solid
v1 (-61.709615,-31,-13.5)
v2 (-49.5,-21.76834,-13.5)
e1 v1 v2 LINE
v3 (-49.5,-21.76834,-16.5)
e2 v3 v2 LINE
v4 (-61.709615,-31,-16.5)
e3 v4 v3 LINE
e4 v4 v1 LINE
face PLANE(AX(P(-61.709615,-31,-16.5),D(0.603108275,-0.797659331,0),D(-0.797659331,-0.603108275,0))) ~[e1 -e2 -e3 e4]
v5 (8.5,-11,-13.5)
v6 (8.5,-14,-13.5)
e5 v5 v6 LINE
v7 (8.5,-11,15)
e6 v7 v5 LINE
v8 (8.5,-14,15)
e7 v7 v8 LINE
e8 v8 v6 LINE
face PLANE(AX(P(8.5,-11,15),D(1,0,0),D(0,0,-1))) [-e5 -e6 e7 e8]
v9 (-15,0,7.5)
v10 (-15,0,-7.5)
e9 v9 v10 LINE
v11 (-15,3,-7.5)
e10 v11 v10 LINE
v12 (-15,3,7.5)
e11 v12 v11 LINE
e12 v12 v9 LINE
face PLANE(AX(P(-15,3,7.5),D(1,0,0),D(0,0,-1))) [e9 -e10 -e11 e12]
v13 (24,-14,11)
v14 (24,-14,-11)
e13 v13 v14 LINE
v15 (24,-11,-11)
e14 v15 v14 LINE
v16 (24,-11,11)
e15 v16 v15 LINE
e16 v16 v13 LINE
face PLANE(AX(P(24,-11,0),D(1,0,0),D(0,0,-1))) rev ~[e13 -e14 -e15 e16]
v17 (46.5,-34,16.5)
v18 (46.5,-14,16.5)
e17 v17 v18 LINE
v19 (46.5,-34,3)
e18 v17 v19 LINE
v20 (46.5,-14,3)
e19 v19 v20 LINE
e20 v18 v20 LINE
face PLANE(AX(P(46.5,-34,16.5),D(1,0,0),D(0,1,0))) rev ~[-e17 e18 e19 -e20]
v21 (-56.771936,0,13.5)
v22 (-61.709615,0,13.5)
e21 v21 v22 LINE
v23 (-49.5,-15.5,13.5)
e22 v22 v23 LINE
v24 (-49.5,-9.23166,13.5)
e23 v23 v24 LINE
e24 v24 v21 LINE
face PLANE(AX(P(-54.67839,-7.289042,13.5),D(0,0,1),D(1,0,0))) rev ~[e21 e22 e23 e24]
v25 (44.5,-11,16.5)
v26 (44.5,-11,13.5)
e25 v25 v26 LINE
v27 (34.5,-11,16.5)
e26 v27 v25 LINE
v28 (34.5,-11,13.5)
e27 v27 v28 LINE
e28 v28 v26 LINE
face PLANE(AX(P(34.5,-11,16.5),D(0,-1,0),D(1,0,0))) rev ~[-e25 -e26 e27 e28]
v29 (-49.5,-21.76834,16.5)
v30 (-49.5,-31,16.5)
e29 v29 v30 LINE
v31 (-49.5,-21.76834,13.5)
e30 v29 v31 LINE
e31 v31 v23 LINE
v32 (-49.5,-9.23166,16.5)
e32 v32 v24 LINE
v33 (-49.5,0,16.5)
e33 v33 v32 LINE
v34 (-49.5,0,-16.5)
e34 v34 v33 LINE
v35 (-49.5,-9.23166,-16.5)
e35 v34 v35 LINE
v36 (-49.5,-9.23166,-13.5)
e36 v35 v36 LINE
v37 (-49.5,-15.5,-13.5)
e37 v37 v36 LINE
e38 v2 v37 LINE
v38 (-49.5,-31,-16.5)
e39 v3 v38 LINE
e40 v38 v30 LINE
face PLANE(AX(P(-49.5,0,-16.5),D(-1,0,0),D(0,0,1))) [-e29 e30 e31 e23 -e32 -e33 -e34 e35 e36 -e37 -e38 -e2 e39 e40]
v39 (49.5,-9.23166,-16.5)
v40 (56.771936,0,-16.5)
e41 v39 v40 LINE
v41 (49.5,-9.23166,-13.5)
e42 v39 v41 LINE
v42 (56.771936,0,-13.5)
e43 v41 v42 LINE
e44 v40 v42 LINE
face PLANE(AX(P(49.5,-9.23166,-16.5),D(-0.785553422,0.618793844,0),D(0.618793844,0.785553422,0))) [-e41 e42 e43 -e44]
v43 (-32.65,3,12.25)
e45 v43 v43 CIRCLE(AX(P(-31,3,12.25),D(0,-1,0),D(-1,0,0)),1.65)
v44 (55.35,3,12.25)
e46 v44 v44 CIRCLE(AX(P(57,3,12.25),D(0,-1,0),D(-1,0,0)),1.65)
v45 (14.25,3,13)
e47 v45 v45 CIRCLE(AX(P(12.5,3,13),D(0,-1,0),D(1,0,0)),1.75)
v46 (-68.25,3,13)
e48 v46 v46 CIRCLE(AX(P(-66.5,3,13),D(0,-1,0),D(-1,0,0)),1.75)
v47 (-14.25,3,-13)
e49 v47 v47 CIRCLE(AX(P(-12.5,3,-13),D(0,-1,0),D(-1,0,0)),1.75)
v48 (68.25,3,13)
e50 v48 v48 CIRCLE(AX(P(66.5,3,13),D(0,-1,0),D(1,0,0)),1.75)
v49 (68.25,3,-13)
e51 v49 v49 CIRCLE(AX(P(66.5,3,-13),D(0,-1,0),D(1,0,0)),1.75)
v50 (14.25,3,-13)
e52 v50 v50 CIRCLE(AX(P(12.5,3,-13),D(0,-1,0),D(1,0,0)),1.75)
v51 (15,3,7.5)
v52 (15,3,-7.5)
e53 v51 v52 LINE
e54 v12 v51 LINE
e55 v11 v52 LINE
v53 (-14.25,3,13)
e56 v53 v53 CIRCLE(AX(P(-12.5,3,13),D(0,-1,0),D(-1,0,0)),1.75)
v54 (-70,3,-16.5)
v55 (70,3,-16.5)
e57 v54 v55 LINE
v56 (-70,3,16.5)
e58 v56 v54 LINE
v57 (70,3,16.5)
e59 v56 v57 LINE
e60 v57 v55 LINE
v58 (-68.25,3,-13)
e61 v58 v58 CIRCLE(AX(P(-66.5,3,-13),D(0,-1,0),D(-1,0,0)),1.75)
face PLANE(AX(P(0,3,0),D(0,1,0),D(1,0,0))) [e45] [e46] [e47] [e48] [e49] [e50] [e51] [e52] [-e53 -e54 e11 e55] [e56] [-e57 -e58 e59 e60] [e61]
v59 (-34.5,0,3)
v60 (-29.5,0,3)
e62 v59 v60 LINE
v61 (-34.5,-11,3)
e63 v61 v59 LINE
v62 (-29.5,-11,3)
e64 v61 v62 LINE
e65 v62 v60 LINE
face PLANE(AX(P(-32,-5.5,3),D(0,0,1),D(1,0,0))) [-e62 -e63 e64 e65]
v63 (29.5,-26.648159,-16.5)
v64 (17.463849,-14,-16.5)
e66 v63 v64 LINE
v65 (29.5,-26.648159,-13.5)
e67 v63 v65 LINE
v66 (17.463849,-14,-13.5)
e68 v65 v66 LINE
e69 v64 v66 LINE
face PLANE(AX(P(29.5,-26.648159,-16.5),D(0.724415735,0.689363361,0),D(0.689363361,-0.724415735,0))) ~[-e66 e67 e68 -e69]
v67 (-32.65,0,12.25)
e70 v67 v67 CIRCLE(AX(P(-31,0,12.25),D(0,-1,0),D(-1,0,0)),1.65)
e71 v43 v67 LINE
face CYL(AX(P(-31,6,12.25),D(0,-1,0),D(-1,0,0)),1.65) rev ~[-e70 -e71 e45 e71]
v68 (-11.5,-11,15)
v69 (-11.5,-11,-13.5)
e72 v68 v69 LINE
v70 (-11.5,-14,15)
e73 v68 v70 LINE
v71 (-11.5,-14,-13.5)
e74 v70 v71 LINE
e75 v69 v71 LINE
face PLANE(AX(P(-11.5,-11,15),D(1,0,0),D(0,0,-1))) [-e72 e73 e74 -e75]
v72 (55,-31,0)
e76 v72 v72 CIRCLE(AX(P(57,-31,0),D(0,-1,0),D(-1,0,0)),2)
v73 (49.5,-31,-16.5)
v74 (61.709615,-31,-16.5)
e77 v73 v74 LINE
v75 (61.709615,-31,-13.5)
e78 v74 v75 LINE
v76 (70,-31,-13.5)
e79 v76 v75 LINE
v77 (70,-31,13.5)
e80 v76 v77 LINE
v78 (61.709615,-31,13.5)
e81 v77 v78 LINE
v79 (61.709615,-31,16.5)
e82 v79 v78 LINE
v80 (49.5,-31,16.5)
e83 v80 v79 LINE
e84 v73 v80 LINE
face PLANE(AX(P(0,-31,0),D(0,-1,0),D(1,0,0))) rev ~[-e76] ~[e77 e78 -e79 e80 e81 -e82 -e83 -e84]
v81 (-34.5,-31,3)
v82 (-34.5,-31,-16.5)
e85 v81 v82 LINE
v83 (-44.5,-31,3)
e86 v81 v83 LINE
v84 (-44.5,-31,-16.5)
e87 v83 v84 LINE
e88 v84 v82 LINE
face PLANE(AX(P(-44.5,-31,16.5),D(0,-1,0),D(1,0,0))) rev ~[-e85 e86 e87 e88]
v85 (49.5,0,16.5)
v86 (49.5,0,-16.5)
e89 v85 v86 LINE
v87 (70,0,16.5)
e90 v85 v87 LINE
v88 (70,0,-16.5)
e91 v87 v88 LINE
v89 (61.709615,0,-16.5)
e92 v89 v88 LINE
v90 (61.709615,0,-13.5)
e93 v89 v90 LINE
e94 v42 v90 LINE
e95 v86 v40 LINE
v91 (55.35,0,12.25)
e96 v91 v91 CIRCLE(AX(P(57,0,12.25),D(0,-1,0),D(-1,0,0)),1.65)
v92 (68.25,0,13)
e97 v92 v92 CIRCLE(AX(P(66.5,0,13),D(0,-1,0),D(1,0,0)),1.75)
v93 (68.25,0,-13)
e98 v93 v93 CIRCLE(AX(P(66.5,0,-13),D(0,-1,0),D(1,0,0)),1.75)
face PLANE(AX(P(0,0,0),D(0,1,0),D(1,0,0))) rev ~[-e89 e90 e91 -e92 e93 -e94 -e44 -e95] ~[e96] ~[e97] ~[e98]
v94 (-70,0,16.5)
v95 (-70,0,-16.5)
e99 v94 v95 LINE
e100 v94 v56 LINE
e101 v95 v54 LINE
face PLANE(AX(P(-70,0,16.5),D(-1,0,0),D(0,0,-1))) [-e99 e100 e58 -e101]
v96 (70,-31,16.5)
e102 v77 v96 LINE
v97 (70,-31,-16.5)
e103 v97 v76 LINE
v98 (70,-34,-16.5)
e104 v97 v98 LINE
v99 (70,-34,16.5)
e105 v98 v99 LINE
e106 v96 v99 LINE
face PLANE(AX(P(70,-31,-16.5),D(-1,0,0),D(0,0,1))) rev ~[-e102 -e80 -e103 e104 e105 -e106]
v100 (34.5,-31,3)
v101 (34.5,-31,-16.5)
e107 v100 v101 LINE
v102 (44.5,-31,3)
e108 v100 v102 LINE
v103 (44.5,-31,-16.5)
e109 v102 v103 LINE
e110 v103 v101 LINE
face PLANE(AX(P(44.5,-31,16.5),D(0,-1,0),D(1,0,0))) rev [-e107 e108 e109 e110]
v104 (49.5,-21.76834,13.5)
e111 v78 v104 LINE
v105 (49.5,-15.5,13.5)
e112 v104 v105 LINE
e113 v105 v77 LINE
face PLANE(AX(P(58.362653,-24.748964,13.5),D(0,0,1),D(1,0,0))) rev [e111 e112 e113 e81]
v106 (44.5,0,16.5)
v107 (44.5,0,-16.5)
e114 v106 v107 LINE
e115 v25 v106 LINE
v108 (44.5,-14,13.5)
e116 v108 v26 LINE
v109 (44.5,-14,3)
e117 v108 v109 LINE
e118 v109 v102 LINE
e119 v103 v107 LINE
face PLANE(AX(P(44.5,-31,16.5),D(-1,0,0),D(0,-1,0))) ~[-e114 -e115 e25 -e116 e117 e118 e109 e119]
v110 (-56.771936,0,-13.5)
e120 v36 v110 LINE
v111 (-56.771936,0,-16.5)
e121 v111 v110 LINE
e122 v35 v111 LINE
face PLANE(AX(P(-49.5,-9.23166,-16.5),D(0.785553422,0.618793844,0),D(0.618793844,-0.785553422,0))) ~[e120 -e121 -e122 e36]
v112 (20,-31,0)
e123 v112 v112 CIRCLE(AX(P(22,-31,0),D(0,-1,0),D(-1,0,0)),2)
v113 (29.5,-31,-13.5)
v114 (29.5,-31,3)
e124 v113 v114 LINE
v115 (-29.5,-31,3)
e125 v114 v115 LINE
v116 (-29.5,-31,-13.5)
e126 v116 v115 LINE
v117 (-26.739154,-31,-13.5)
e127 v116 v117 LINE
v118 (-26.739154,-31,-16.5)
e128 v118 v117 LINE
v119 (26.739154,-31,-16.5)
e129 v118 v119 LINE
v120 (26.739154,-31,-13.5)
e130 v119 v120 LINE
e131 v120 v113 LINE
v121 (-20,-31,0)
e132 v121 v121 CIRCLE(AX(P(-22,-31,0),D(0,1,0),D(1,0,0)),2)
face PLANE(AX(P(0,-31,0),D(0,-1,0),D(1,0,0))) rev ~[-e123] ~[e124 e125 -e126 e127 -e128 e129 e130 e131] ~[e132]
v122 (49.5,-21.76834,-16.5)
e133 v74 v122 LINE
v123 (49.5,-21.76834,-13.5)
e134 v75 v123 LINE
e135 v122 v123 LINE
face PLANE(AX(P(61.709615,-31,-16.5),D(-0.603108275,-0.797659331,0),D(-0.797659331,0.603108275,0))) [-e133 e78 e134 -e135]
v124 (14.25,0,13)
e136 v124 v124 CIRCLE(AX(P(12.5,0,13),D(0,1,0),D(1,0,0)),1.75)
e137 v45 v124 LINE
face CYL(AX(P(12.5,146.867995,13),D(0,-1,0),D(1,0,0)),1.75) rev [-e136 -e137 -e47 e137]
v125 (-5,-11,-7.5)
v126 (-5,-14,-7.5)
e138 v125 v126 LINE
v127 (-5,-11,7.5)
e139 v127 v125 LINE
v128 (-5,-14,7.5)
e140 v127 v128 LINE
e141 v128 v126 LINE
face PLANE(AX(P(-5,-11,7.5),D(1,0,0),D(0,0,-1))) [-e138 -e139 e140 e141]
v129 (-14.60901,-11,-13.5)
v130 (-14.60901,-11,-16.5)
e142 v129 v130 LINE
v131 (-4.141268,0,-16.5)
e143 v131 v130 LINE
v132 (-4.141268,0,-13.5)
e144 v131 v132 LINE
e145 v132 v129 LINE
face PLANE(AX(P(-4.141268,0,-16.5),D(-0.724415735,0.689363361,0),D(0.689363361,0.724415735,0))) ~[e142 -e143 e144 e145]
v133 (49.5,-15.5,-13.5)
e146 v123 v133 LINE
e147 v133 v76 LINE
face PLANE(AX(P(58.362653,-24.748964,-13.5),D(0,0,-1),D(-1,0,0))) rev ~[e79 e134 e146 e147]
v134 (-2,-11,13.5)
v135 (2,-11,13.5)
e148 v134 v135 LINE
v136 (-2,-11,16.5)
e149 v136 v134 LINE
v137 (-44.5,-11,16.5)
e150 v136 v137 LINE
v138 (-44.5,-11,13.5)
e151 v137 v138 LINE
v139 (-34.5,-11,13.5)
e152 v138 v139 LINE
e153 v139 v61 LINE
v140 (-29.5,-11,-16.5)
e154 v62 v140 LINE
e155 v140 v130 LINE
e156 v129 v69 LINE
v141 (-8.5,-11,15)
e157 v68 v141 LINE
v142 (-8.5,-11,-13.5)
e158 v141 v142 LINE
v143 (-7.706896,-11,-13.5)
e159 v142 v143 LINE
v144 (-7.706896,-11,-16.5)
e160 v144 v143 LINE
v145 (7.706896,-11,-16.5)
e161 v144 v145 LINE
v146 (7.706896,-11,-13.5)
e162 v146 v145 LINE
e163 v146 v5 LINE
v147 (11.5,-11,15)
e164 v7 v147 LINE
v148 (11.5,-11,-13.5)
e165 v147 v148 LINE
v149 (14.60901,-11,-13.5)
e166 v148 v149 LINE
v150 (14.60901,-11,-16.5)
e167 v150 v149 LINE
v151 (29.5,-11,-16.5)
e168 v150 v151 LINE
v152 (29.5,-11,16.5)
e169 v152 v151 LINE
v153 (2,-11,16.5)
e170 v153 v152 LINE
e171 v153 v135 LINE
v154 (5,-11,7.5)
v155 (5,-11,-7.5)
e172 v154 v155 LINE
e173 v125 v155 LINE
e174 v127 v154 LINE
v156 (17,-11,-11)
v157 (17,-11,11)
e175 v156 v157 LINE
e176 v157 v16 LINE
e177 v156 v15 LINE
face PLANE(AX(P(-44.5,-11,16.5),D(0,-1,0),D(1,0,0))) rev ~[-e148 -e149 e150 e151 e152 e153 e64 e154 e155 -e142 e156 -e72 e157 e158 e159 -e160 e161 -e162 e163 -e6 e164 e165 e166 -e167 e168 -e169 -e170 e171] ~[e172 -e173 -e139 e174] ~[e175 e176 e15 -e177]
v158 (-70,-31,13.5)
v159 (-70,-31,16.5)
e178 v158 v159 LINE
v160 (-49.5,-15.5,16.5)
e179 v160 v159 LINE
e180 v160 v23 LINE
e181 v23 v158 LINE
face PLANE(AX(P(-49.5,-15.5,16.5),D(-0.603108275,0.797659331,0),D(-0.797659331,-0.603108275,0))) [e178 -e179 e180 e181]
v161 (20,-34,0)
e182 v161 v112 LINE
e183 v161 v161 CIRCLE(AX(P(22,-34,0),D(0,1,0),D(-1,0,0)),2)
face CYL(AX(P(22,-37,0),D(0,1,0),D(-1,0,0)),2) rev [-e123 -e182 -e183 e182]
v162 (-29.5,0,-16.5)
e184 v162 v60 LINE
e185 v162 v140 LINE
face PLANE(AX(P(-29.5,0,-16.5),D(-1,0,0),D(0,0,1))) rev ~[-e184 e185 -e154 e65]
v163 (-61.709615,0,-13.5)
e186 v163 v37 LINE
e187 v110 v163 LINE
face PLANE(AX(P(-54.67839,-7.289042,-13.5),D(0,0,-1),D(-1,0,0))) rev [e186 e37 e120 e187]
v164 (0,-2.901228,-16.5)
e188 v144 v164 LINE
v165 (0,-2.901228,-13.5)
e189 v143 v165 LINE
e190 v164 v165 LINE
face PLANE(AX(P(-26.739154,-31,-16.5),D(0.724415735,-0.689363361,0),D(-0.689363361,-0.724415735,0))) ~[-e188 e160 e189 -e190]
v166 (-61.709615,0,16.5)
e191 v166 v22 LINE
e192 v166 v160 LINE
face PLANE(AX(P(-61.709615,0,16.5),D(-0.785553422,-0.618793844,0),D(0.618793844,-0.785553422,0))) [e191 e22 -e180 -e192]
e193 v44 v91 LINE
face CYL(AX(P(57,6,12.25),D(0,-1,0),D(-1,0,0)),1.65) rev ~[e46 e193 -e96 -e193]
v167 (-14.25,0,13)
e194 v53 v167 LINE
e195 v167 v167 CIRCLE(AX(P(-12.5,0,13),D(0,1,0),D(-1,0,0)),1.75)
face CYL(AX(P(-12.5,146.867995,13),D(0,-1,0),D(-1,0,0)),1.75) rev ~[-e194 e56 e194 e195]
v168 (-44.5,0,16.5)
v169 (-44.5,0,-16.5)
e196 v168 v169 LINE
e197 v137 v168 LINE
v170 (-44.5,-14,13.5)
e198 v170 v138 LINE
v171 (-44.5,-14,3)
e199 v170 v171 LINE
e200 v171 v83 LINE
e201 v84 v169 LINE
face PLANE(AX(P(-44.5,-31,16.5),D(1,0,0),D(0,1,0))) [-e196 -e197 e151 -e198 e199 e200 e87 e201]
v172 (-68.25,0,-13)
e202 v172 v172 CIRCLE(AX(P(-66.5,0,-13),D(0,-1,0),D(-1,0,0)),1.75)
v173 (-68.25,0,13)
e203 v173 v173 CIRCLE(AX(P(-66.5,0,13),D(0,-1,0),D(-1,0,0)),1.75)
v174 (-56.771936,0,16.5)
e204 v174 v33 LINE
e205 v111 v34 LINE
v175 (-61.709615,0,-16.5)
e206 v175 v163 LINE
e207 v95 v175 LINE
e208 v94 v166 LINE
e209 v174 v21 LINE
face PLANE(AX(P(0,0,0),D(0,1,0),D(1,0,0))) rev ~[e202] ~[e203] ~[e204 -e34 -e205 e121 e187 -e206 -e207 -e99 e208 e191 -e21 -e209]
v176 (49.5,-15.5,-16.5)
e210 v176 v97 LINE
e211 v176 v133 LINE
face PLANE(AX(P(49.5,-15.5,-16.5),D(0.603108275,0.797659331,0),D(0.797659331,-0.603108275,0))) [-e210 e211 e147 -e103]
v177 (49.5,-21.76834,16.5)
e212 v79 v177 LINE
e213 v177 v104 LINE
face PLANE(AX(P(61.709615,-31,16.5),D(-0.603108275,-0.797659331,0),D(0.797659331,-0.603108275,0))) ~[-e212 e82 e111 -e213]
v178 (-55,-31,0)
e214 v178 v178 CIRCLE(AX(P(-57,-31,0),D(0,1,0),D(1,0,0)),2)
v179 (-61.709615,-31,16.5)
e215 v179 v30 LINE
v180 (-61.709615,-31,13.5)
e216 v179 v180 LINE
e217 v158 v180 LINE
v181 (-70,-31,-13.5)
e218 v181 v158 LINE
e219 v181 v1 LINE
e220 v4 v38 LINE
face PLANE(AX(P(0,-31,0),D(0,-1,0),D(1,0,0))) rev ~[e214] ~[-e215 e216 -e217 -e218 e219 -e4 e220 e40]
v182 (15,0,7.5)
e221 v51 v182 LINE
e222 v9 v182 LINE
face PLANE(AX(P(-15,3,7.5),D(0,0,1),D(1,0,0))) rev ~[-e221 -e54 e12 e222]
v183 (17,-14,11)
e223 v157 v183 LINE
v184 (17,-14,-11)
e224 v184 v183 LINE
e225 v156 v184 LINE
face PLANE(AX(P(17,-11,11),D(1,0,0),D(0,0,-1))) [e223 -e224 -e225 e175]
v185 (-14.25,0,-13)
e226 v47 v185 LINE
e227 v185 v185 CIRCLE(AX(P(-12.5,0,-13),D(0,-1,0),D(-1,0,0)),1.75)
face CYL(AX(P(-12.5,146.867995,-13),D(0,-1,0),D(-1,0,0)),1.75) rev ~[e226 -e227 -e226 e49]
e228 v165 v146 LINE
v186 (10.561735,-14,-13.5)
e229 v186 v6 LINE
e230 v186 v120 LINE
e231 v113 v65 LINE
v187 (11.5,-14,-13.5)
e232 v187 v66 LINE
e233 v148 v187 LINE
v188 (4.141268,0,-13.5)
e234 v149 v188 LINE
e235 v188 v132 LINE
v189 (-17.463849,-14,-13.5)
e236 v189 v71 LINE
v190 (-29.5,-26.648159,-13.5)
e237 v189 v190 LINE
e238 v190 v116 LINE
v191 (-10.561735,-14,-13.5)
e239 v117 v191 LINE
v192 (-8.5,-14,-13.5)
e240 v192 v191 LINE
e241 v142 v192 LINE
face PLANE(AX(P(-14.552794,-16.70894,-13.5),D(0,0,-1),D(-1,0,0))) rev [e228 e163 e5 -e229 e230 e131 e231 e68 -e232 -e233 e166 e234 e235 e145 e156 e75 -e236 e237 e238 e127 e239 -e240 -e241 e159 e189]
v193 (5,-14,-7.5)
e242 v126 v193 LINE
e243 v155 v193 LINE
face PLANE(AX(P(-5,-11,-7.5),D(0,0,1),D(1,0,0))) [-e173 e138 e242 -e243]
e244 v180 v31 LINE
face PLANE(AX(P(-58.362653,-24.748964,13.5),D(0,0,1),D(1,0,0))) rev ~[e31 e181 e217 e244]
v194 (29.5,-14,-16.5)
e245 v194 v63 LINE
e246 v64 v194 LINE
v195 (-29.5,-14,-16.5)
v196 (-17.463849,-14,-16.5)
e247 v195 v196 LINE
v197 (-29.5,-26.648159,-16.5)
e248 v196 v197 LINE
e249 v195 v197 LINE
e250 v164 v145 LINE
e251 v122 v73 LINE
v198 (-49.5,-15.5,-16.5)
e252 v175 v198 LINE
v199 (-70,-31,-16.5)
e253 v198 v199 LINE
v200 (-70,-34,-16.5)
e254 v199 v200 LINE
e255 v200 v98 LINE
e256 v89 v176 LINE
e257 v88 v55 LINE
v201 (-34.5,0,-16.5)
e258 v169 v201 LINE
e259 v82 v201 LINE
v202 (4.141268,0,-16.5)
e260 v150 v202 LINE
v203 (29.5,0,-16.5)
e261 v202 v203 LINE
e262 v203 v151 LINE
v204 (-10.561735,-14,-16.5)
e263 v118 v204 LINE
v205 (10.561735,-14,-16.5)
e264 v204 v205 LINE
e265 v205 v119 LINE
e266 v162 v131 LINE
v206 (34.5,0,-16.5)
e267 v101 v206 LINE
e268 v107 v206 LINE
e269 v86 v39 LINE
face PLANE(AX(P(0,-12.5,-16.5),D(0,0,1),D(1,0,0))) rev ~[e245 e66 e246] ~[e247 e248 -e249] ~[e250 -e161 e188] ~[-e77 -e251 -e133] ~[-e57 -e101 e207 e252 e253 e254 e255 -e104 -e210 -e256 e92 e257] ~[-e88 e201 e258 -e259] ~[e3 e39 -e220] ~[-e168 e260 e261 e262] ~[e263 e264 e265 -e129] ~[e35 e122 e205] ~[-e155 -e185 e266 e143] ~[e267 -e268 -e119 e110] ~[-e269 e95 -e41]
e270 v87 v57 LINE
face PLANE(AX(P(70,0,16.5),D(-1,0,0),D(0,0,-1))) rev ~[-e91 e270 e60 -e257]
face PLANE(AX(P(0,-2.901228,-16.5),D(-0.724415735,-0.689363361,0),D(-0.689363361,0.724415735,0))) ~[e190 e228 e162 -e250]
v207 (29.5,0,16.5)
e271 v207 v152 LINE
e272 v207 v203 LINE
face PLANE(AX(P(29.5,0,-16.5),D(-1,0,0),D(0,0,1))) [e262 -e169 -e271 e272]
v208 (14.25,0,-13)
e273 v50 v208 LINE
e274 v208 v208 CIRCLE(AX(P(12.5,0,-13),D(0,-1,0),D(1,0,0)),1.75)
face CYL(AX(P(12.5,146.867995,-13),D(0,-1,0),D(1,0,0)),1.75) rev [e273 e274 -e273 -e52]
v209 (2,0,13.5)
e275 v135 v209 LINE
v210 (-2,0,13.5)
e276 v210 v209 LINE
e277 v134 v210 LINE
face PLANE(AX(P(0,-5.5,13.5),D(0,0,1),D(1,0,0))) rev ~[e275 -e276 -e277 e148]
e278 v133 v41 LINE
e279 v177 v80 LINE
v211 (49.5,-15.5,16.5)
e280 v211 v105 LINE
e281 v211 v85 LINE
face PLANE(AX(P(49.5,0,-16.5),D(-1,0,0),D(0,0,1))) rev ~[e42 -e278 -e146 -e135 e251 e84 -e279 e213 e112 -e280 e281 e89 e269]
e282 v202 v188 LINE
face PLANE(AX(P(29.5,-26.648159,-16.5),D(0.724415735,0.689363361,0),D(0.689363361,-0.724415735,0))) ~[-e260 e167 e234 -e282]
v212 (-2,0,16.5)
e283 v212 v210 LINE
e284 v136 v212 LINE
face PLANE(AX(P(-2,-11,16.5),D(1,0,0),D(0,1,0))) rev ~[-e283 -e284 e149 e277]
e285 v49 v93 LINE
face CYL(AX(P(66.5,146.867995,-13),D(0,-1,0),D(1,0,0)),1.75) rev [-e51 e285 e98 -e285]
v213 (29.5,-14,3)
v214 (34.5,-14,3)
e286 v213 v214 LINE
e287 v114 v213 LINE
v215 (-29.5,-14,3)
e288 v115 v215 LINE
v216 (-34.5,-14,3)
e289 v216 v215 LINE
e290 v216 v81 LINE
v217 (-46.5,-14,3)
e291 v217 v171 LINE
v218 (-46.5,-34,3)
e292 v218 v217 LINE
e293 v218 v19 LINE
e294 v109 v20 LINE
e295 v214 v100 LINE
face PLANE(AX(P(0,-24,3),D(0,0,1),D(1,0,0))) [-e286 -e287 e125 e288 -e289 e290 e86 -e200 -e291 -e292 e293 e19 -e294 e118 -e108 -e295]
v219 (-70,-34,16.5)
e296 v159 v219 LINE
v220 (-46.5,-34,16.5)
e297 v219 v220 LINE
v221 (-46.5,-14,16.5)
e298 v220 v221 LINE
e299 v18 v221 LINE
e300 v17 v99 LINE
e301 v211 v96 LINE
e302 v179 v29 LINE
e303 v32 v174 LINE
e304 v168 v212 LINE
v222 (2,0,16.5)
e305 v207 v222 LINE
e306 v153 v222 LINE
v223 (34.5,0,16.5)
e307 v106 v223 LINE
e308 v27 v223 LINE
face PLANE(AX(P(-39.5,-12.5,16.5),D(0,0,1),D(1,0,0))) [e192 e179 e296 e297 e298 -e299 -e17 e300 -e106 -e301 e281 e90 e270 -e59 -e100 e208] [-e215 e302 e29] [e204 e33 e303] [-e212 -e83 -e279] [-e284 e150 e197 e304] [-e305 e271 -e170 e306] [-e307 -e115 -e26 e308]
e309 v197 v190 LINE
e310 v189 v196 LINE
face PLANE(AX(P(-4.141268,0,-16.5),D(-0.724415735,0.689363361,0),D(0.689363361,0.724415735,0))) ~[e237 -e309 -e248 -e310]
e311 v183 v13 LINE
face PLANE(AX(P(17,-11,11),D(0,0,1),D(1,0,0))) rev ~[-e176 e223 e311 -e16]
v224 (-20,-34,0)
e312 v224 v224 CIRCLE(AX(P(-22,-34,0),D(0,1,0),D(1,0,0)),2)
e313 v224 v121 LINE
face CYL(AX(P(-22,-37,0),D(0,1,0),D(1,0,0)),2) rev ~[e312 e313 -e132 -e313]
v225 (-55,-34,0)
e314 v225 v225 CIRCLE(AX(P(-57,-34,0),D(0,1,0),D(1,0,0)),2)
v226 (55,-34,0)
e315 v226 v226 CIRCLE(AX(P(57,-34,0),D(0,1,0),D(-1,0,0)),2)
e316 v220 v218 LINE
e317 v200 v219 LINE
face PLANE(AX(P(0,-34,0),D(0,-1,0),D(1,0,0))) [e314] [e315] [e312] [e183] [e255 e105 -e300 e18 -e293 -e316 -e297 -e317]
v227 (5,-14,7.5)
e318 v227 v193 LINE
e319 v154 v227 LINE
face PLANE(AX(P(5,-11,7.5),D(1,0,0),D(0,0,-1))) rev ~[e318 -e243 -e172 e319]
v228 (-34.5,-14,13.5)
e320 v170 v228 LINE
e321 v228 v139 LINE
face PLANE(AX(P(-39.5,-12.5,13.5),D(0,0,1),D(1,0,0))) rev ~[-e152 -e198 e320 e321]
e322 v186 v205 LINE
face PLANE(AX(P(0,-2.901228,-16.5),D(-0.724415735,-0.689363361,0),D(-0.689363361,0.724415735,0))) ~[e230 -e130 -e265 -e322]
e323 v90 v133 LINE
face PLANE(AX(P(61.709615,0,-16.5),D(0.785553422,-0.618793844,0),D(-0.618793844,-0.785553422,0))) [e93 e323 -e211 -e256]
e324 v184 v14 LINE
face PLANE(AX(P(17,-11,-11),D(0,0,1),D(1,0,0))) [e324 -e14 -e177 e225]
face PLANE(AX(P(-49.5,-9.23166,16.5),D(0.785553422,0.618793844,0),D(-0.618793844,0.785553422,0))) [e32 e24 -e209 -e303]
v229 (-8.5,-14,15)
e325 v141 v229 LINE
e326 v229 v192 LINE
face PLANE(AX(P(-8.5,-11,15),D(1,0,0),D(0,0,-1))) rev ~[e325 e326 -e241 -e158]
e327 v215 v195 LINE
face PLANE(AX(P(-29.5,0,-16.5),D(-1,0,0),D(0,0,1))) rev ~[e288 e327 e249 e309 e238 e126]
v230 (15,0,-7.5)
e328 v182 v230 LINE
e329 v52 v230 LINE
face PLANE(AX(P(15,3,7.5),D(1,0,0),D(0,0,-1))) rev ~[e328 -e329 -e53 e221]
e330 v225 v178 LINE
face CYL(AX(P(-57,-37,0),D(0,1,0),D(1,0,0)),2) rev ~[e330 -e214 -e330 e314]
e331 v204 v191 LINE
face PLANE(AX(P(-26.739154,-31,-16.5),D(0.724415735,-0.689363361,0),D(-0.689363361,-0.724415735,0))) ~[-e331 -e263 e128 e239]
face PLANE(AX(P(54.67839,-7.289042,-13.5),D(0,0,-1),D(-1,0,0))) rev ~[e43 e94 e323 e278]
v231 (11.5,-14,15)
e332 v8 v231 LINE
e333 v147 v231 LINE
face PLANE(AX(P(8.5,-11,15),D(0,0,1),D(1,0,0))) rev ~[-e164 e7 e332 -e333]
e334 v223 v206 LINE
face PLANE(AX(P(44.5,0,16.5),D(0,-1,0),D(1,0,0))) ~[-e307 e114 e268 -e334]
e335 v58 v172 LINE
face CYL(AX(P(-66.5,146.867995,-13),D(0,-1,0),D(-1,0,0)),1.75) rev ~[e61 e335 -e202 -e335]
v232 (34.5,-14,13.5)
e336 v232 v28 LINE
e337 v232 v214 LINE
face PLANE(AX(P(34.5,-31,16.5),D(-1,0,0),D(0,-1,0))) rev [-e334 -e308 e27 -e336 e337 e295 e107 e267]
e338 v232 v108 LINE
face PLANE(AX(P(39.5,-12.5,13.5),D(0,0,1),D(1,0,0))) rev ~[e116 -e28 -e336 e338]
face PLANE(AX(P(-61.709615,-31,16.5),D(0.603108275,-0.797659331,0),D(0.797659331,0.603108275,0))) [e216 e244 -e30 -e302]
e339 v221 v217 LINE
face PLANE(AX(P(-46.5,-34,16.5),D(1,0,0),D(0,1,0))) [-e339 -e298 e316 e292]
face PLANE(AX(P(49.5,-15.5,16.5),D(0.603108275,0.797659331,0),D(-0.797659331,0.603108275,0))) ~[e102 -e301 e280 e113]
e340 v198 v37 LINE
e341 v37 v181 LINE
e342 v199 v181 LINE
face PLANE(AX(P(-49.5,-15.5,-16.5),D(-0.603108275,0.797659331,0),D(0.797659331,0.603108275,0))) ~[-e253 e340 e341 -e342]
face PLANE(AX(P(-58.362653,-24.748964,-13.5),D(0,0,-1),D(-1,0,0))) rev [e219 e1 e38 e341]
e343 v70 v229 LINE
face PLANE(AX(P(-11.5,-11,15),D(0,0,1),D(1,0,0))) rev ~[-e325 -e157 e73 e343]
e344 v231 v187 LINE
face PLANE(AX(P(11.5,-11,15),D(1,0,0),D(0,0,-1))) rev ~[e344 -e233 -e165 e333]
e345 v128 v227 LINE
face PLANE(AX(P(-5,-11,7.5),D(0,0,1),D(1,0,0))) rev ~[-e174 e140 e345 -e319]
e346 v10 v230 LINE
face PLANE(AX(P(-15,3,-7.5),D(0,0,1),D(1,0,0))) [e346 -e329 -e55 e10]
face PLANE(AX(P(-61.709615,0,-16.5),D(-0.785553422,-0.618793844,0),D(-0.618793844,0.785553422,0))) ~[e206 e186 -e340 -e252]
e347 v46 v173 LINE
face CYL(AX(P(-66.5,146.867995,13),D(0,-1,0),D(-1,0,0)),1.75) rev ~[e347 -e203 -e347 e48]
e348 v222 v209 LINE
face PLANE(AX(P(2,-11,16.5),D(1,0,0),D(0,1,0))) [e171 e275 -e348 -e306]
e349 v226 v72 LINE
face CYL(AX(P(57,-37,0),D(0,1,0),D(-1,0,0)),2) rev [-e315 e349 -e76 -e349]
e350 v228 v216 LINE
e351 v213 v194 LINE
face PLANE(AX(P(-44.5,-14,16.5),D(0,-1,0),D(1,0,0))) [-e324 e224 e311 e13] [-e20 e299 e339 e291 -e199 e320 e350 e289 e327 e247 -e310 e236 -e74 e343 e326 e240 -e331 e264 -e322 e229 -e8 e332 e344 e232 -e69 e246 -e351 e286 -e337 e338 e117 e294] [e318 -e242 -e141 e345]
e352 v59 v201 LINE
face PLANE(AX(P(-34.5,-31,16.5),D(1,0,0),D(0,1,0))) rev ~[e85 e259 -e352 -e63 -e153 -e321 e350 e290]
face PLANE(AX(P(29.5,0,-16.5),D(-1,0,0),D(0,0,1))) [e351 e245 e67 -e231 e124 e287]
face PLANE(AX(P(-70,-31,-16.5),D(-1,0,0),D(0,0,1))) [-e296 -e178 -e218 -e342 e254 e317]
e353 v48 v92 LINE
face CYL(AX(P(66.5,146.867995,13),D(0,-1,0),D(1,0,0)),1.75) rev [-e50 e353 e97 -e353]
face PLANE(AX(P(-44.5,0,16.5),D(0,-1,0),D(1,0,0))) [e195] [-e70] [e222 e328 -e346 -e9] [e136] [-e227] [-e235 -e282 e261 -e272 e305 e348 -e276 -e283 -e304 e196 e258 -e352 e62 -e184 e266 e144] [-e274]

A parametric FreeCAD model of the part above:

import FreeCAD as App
import Part
import Sketcher
Q = App.Units.Quantity


def add_polygon(sketch, points):
    """Adds a closed chain of lines whose ends are joined by coincident constraints."""
    first, n = sketch.GeometryCount, len(points)
    for a, b in zip(points, points[1:] + points[:1]):
        sketch.addGeometry(Part.LineSegment(App.Vector(*a, 0), App.Vector(*b, 0)), False)
    for i in range(n):
        sketch.addConstraint(Sketcher.Constraint("Coincident", first + i, 2, first + (i + 1) % n, 1))

doc = App.newDocument("Part")
body = doc.addObject("PartDesign::Body", "Body")

sketch1 = doc.addObject("Sketcher::SketchObject", "Sketch")
body.addObject(sketch1)
sketch1.AttachmentSupport = (doc.XZ_Plane, [""])
sketch1.MapMode = "FlatFace"
add_polygon(sketch1, [(-70, -16), (-70, 16), (70, 16), (70, -16)])
sketch1.addConstraint([
    Sketcher.Constraint("Vertical", 0),
    Sketcher.Constraint("Horizontal", 1),
    Sketcher.Constraint("Vertical", 2),
    Sketcher.Constraint("Horizontal", 3),
    Sketcher.Constraint("Symmetric", 0, 2, 2, 2, -1, 1),
    Sketcher.Constraint("DistanceX", 1, 1, 1, 2, Q("140 mm")),
    Sketcher.Constraint("DistanceY", 0, 1, 0, 2, Q("33 mm")),
])
pad1 = doc.addObject("PartDesign::Pad", "Pad")
body.addObject(pad1)
pad1.Profile = sketch1
pad1.Length = 3
pad1.Reversed = True

sketch2 = doc.addObject("Sketcher::SketchObject", "Sketch001")
body.addObject(sketch2)
sketch2.AttachmentSupport = (doc.XZ_Plane, [""])
sketch2.MapMode = "FlatFace"
sketch2.AttachmentOffset = App.Placement(App.Vector(0, 0, -3), App.Rotation())
sketch2.addGeometry([
    Part.Circle(App.Vector(-66.5, -13, 0), App.Vector(0, 0, 1), 1.8),
    Part.Circle(App.Vector(-12.5, -13, 0), App.Vector(0, 0, 1), 1.8),
    Part.Circle(App.Vector(-12.5, 13, 0), App.Vector(0, 0, 1), 1.8),
    Part.Circle(App.Vector(-66.5, 13, 0), App.Vector(0, 0, 1), 1.8),
], False)
sketch2.addConstraint([
    Sketcher.Constraint("Equal", 0, 1),
    Sketcher.Constraint("Equal", 1, 2),
    Sketcher.Constraint("Equal", 2, 3),
    Sketcher.Constraint("Symmetric", 1, 3, 2, 3, -1),
    Sketcher.Constraint("Symmetric", 0, 3, 3, 3, -1),
    Sketcher.Constraint("Horizontal", 0, 3, 1, 3),
    Sketcher.Constraint("Diameter", 0, Q("3.5 mm")),
    Sketcher.Constraint("DistanceY", 0, 3, -1, 1, Q("13 mm")),
    Sketcher.Constraint("DistanceX", 0, 3, 1, 3, Q("54 mm")),
    Sketcher.Constraint("DistanceX", 0, 3, -1, 1, Q("66.5 mm")),
])
doc.recompute()
hole = doc.addObject("PartDesign::Hole", "Hole")
body.addObject(hole)
hole.Profile = sketch2
hole.ThreadType = "None"
hole.Diameter = 3.5
hole.DepthType = "ThroughAll"
hole.Reversed = True
doc.recompute()

mirrored = doc.addObject("PartDesign::Mirrored", "Mirrored")
body.addObject(mirrored)
mirrored.Originals = [hole]
mirrored.MirrorPlane = (doc.YZ_Plane, [""])
body.Tip = mirrored

sketch3 = doc.addObject("Sketcher::SketchObject", "Sketch002")
body.addObject(sketch3)
sketch3.AttachmentSupport = (doc.XZ_Plane, [""])
sketch3.MapMode = "FlatFace"
add_polygon(sketch3, [(-50, 16), (-50, -16), (-30, -16), (-30, 16)])
add_polygon(sketch3, [(30, 16), (30, -16), (50, -16), (50, 16)])
sketch3.addConstraint([
    Sketcher.Constraint("Vertical", 0),
    Sketcher.Constraint("Horizontal", 1),
    Sketcher.Constraint("Vertical", 2),
    Sketcher.Constraint("Horizontal", 3),
    Sketcher.Constraint("Vertical", 4),
    Sketcher.Constraint("Horizontal", 5),
    Sketcher.Constraint("Vertical", 6),
    Sketcher.Constraint("Horizontal", 7),
    Sketcher.Constraint("Symmetric", 2, 2, 4, 2, -1, 1),
    Sketcher.Constraint("Symmetric", 0, 2, 6, 2, -1, 1),
    Sketcher.Constraint("Horizontal", 1, 2, 4, 2),
    Sketcher.Constraint("DistanceX", 1, 1, 1, 2, Q("20 mm")),
    Sketcher.Constraint("DistanceY", 0, 2, 0, 1, Q("33 mm")),
    Sketcher.Constraint("DistanceX", 1, 2, 4, 2, Q("59 mm")),
])
pad2 = doc.addObject("PartDesign::Pad", "Pad001")
body.addObject(pad2)
pad2.Profile = sketch3
pad2.Length = 31

sketch4 = doc.addObject("Sketcher::SketchObject", "Sketch003")
body.addObject(sketch4)
sketch4.AttachmentSupport = (doc.XZ_Plane, [""])
sketch4.MapMode = "FlatFace"
sketch4.AttachmentOffset = App.Placement(App.Vector(0, 0, 31), App.Rotation())
add_polygon(sketch4, [(-70, 16), (-70, -16), (70, -16), (70, 16)])
sketch4.addConstraint([
    Sketcher.Constraint("Vertical", 0),
    Sketcher.Constraint("Horizontal", 1),
    Sketcher.Constraint("Vertical", 2),
    Sketcher.Constraint("Horizontal", 3),
    Sketcher.Constraint("Symmetric", 0, 2, 2, 2, -1, 1),
    Sketcher.Constraint("DistanceX", 1, 1, 1, 2, Q("140 mm")),
    Sketcher.Constraint("DistanceY", 0, 2, 0, 1, Q("33 mm")),
])
pad3 = doc.addObject("PartDesign::Pad", "Pad002")
body.addObject(pad3)
pad3.Profile = sketch4
pad3.Length = 3

sketch5 = doc.addObject("Sketcher::SketchObject", "Sketch004")
body.addObject(sketch5)
sketch5.AttachmentSupport = (doc.XZ_Plane, [""])
sketch5.MapMode = "FlatFace"
sketch5.AttachmentOffset = App.Placement(App.Vector(0, 0, 34), App.Rotation())
sketch5.addGeometry([
    Part.Circle(App.Vector(-57, 0, 0), App.Vector(0, 0, 1), 2),
    Part.Circle(App.Vector(-22, 0, 0), App.Vector(0, 0, 1), 2),
], False)
sketch5.addConstraint([
    Sketcher.Constraint("Equal", 0, 1),
    Sketcher.Constraint("PointOnObject", 0, 3, -1),
    Sketcher.Constraint("PointOnObject", 1, 3, -1),
    Sketcher.Constraint("Diameter", 0, Q("4 mm")),
    Sketcher.Constraint("DistanceX", 0, 3, -1, 1, Q("57 mm")),
    Sketcher.Constraint("DistanceX", 1, 3, -1, 1, Q("22 mm")),
])
doc.recompute()
hole2 = doc.addObject("PartDesign::Hole", "Hole001")
body.addObject(hole2)
hole2.Profile = sketch5
hole2.ThreadType = "None"
hole2.Diameter = 4
hole2.DepthType = "Dimension"
hole2.Depth = 3
hole2.DrillPoint = "Flat"
doc.recompute()

mirrored2 = doc.addObject("PartDesign::Mirrored", "Mirrored001")
body.addObject(mirrored2)
mirrored2.Originals = [hole2]
mirrored2.MirrorPlane = (doc.YZ_Plane, [""])
body.Tip = mirrored2

sketch6 = doc.addObject("Sketcher::SketchObject", "Sketch005")
body.addObject(sketch6)
sketch6.AttachmentSupport = (doc.XY_Plane, [""])
sketch6.MapMode = "FlatFace"
sketch6.AttachmentOffset = App.Placement(App.Vector(0, 0, 16.5), App.Rotation())
add_polygon(sketch6, [(-61.7, 0), (-49.5, -15.5), (-49.5, -9.2), (-56.8, 0)])
add_polygon(sketch6, [(-49.5, -15.5), (-70, -31), (-61.7, -31), (-49.5, -21.8)])
sketch6.addConstraint([
    Sketcher.Constraint("Vertical", 1),
    Sketcher.Constraint("Horizontal", 3),
    Sketcher.Constraint("Horizontal", 5),
    Sketcher.Constraint("Vertical", 7),
    Sketcher.Constraint("Coincident", 7, 2, 0, 2),
    Sketcher.Constraint("PointOnObject", 2, 2, -1),
    Sketcher.Constraint("Parallel", 0, 2),
    Sketcher.Constraint("Parallel", 4, 6),
    Sketcher.Constraint("Vertical", 3, 2, 5, 2),
    Sketcher.Constraint("Equal", 1, 7),
    Sketcher.Constraint("DistanceX", 4, 2, -1, 1, Q("70 mm")),
    Sketcher.Constraint("DistanceY", 4, 2, -1, 1, Q("31 mm")),
    Sketcher.Constraint("DistanceX", 0, 2, -1, 1, Q("49.5 mm")),
    Sketcher.Constraint("DistanceY", 0, 2, -1, 1, Q("15.5 mm")),
    Sketcher.Constraint("DistanceX", 3, 2, 3, 1, Q("4.937679 mm")),
])
pad4 = doc.addObject("PartDesign::Pad", "Pad003")
body.addObject(pad4)
pad4.Profile = sketch6
pad4.Length = 3
pad4.Reversed = True
doc.recompute()

mirrored3 = doc.addObject("PartDesign::Mirrored", "Mirrored002")
body.addObject(mirrored3)
mirrored3.Originals = [pad4]
mirrored3.MirrorPlane = (doc.XY_Plane, [""])
body.Tip = mirrored3
doc.recompute()

mirrored4 = doc.addObject("PartDesign::Mirrored", "Mirrored003")
body.addObject(mirrored4)
mirrored4.Originals = [pad4]
mirrored4.MirrorPlane = (doc.YZ_Plane, [""])
body.Tip = mirrored4

sketch7 = doc.addObject("Sketcher::SketchObject", "Sketch006")
body.addObject(sketch7)
sketch7.AttachmentSupport = (doc.XY_Plane, [""])
sketch7.MapMode = "FlatFace"
sketch7.AttachmentOffset = App.Placement(App.Vector(0, 0, -16.5), App.Rotation())
add_polygon(sketch7, [(61.7, 0), (49.5, -15.5), (49.5, -9.2), (56.8, 0)])
add_polygon(sketch7, [(49.5, -15.5), (70, -31), (61.7, -31), (49.5, -21.8)])
sketch7.addConstraint([
    Sketcher.Constraint("Vertical", 1),
    Sketcher.Constraint("Horizontal", 3),
    Sketcher.Constraint("Horizontal", 5),
    Sketcher.Constraint("Vertical", 7),
    Sketcher.Constraint("Coincident", 7, 2, 0, 2),
    Sketcher.Constraint("PointOnObject", 2, 2, -1),
    Sketcher.Constraint("Parallel", 0, 2),
    Sketcher.Constraint("Parallel", 4, 6),
    Sketcher.Constraint("Vertical", 3, 2, 5, 2),
    Sketcher.Constraint("Equal", 1, 7),
    Sketcher.Constraint("DistanceX", -1, 1, 4, 2, Q("70 mm")),
    Sketcher.Constraint("DistanceY", 4, 2, -1, 1, Q("31 mm")),
    Sketcher.Constraint("DistanceX", -1, 1, 0, 2, Q("49.5 mm")),
    Sketcher.Constraint("DistanceY", 0, 2, -1, 1, Q("15.5 mm")),
    Sketcher.Constraint("DistanceX", 3, 1, 3, 2, Q("4.937679 mm")),
])
pad5 = doc.addObject("PartDesign::Pad", "Pad004")
body.addObject(pad5)
pad5.Profile = sketch7
pad5.Length = 3

sketch8 = doc.addObject("Sketcher::SketchObject", "Sketch007")
body.addObject(sketch8)
sketch8.AttachmentSupport = (doc.XY_Plane, [""])
sketch8.MapMode = "FlatFace"
sketch8.AttachmentOffset = App.Placement(App.Vector(0, 0, 16.5), App.Rotation())
add_polygon(sketch8, [(-29.5, -31), (-26.7, -31), (0, -2.9), (26.7, -31), (29.5, -31), (29.5, -26.6), (4.1, 0), (-4.1, 0), (-29.5, -26.6)])
sketch8.addConstraint([
    Sketcher.Constraint("Horizontal", 0),
    Sketcher.Constraint("Horizontal", 3),
    Sketcher.Constraint("Vertical", 4),
    Sketcher.Constraint("Horizontal", 6),
    Sketcher.Constraint("Vertical", 8),
    Sketcher.Constraint("Symmetric", 5, 2, 6, 2, -1, 1),
    Sketcher.Constraint("Symmetric", 0, 2, 2, 2, -2),
    Sketcher.Constraint("Symmetric", 4, 2, 7, 2, -2),
    Sketcher.Constraint("PointOnObject", 1, 2, -2),
    Sketcher.Constraint("Parallel", 2, 5),
    Sketcher.Constraint("DistanceY", 0, 2, -1, 1, Q("31 mm")),
    Sketcher.Constraint("DistanceX", -1, 1, 3, 2, Q("29.5 mm")),
    Sketcher.Constraint("DistanceY", 4, 1, 4, 2, Q("4.351841 mm")),
    Sketcher.Constraint("DistanceX", 0, 1, 0, 2, Q("2.760846 mm")),
    Sketcher.Constraint("DistanceX", 6, 2, 6, 1, Q("8.282537 mm")),
])
pad6 = doc.addObject("PartDesign::Pad", "Pad005")
body.addObject(pad6)
pad6.Profile = sketch8
pad6.Length = 3
pad6.Reversed = True
doc.recompute()

mirrored5 = doc.addObject("PartDesign::Mirrored", "Mirrored004")
body.addObject(mirrored5)
mirrored5.Originals = [pad6]
mirrored5.MirrorPlane = (doc.XY_Plane, [""])
body.Tip = mirrored5

sketch9 = doc.addObject("Sketcher::SketchObject", "Sketch008")
body.addObject(sketch9)
sketch9.AttachmentSupport = (doc.XY_Plane, [""])
sketch9.MapMode = "FlatFace"
sketch9.AttachmentOffset = App.Placement(App.Vector(0, 0, 16.5), App.Rotation())
add_polygon(sketch9, [(-44, 0), (-44, -31), (-34, -31), (-34, 0)])
sketch9.addConstraint([
    Sketcher.Constraint("Vertical", 0),
    Sketcher.Constraint("Horizontal", 1),
    Sketcher.Constraint("Vertical", 2),
    Sketcher.Constraint("Horizontal", 3),
    Sketcher.Constraint("PointOnObject", 2, 2, -1),
    Sketcher.Constraint("DistanceX", 1, 1, 1, 2, Q("10 mm")),
    Sketcher.Constraint("DistanceY", 0, 2, 0, 1, Q("31 mm")),
    Sketcher.Constraint("DistanceX", 0, 2, -1, 1, Q("44.5 mm")),
])
pocket1 = doc.addObject("PartDesign::Pocket", "Pocket")
body.addObject(pocket1)
pocket1.Profile = sketch9
pocket1.Type = "ThroughAll"
doc.recompute()

mirrored6 = doc.addObject("PartDesign::Mirrored", "Mirrored005")
body.addObject(mirrored6)
mirrored6.Originals = [pocket1]
mirrored6.MirrorPlane = (doc.YZ_Plane, [""])
body.Tip = mirrored6

sketch10 = doc.addObject("Sketcher::SketchObject", "Sketch009")
body.addObject(sketch10)
sketch10.AttachmentSupport = (doc.XZ_Plane, [""])
sketch10.MapMode = "FlatFace"
sketch10.AttachmentOffset = App.Placement(App.Vector(0, 0, 31), App.Rotation())
add_polygon(sketch10, [(-9, 7.8), (-9, 11.2), (9, 11.2), (9, 7.8)])
sketch10.addConstraint([
    Sketcher.Constraint("Vertical", 0),
    Sketcher.Constraint("Horizontal", 1),
    Sketcher.Constraint("Vertical", 2),
    Sketcher.Constraint("Horizontal", 3),
    Sketcher.Constraint("DistanceX", 1, 1, 1, 2, Q("18 mm")),
    Sketcher.Constraint("DistanceY", 0, 1, 0, 2, Q("3.3 mm")),
    Sketcher.Constraint("DistanceX", 0, 2, -1, 1, Q("9 mm")),
    Sketcher.Constraint("DistanceY", -1, 1, 0, 2, Q("11.15 mm")),
])
pocket2 = doc.addObject("PartDesign::Pocket", "Pocket001")
body.addObject(pocket2)
pocket2.Profile = sketch10
pocket2.Length = 3
pocket2.Reversed = True

sketch11 = doc.addObject("Sketcher::SketchObject", "Sketch010")
body.addObject(sketch11)
sketch11.AttachmentSupport = (doc.XZ_Plane, [""])
sketch11.MapMode = "FlatFace"
sketch11.AttachmentOffset = App.Placement(App.Vector(0, 0, -3), App.Rotation())
add_polygon(sketch11, [(-15, -8), (-15, 8), (15, 8), (15, -8)])
sketch11.addConstraint([
    Sketcher.Constraint("Vertical", 0),
    Sketcher.Constraint("Horizontal", 1),
    Sketcher.Constraint("Vertical", 2),
    Sketcher.Constraint("Horizontal", 3),
    Sketcher.Constraint("Symmetric", 0, 2, 2, 2, -1, 1),
    Sketcher.Constraint("DistanceX", 1, 1, 1, 2, Q("30 mm")),
    Sketcher.Constraint("DistanceY", 0, 1, 0, 2, Q("15 mm")),
])
pocket3 = doc.addObject("PartDesign::Pocket", "Pocket002")
body.addObject(pocket3)
pocket3.Profile = sketch11
pocket3.Length = 5
pocket3.Reversed = True

sketch12 = doc.addObject("Sketcher::SketchObject", "Sketch011")
body.addObject(sketch12)
sketch12.AttachmentSupport = (doc.XY_Plane, [""])
sketch12.MapMode = "FlatFace"
sketch12.AttachmentOffset = App.Placement(App.Vector(0, 0, 16.5), App.Rotation())
add_polygon(sketch12, [(50, 0), (50, -16), (64, -16), (64, 0)])
sketch12.addConstraint([
    Sketcher.Constraint("Vertical", 0),
    Sketcher.Constraint("Horizontal", 1),
    Sketcher.Constraint("Vertical", 2),
    Sketcher.Constraint("Horizontal", 3),
    Sketcher.Constraint("PointOnObject", 2, 2, -1),
    Sketcher.Constraint("DistanceX", 1, 1, 1, 2, Q("15 mm")),
    Sketcher.Constraint("DistanceY", 0, 2, 0, 1, Q("15.5 mm")),
    Sketcher.Constraint("DistanceX", -1, 1, 0, 2, Q("49.5 mm")),
])
pocket4 = doc.addObject("PartDesign::Pocket", "Pocket003")
body.addObject(pocket4)
pocket4.Profile = sketch12
pocket4.Length = 3

sketch13 = doc.addObject("Sketcher::SketchObject", "Sketch012")
body.addObject(sketch13)
sketch13.AttachmentSupport = (doc.XY_Plane, [""])
sketch13.MapMode = "FlatFace"
sketch13.AttachmentOffset = App.Placement(App.Vector(0, 0, 16.5), App.Rotation())
add_polygon(sketch13, [(-46, -14), (-46, -34), (46, -34), (46, -14)])
sketch13.addConstraint([
    Sketcher.Constraint("Vertical", 0),
    Sketcher.Constraint("Horizontal", 1),
    Sketcher.Constraint("Vertical", 2),
    Sketcher.Constraint("Horizontal", 3),
    Sketcher.Constraint("DistanceX", 1, 1, 1, 2, Q("93 mm")),
    Sketcher.Constraint("DistanceY", 0, 2, 0, 1, Q("20 mm")),
    Sketcher.Constraint("DistanceY", 0, 2, -1, 1, Q("34 mm")),
    Sketcher.Constraint("DistanceX", 0, 2, -1, 1, Q("46.5 mm")),
])
pocket5 = doc.addObject("PartDesign::Pocket", "Pocket004")
body.addObject(pocket5)
pocket5.Profile = sketch13
pocket5.Length = 13.5

sketch14 = doc.addObject("Sketcher::SketchObject", "Sketch013")
body.addObject(sketch14)
sketch14.AttachmentSupport = (doc.XY_Plane, [""])
sketch14.MapMode = "FlatFace"
sketch14.AttachmentOffset = App.Placement(App.Vector(0, 0, 16.5), App.Rotation())
add_polygon(sketch14, [(-30, 0), (-30, -14), (30, -14), (30, 0)])
sketch14.addConstraint([
    Sketcher.Constraint("Vertical", 0),
    Sketcher.Constraint("Horizontal", 1),
    Sketcher.Constraint("Vertical", 2),
    Sketcher.Constraint("Horizontal", 3),
    Sketcher.Constraint("Symmetric", 2, 2, 3, 2, -1, 1),
    Sketcher.Constraint("DistanceX", 1, 1, 1, 2, Q("59 mm")),
    Sketcher.Constraint("DistanceY", 0, 2, 0, 1, Q("14 mm")),
])
pocket6 = doc.addObject("PartDesign::Pocket", "Pocket005")
body.addObject(pocket6)
pocket6.Profile = sketch14
pocket6.Length = 3

sketch15 = doc.addObject("Sketcher::SketchObject", "Sketch014")
body.addObject(sketch15)
sketch15.AttachmentSupport = (doc.XY_Plane, [""])
sketch15.MapMode = "FlatFace"
sketch15.AttachmentOffset = App.Placement(App.Vector(0, 0, 16.5), App.Rotation())
add_polygon(sketch15, [(-29.5, -11), (-29.5, -14), (29.5, -14), (29.5, -11)])
sketch15.addConstraint([
    Sketcher.Constraint("Vertical", 0),
    Sketcher.Constraint("Horizontal", 1),
    Sketcher.Constraint("Vertical", 2),
    Sketcher.Constraint("Horizontal", 3),
    Sketcher.Constraint("DistanceX", 1, 1, 1, 2, Q("59 mm")),
    Sketcher.Constraint("DistanceY", 0, 2, 0, 1, Q("3 mm")),
    Sketcher.Constraint("DistanceY", 0, 2, -1, 1, Q("14 mm")),
    Sketcher.Constraint("DistanceX", 0, 2, -1, 1, Q("29.5 mm")),
])
pad7 = doc.addObject("PartDesign::Pad", "Pad006")
body.addObject(pad7)
pad7.Profile = sketch15
pad7.Length = 33
pad7.Reversed = True

sketch16 = doc.addObject("Sketcher::SketchObject", "Sketch015")
body.addObject(sketch16)
sketch16.AttachmentSupport = (doc.XZ_Plane, [""])
sketch16.MapMode = "FlatFace"
sketch16.AttachmentOffset = App.Placement(App.Vector(0, 0, 11), App.Rotation())
add_polygon(sketch16, [(-11.5, -13.5), (-11.5, 15), (-8.5, 15), (-8.5, -13.5)])
add_polygon(sketch16, [(8.5, -13.5), (8.5, 15), (11.5, 15), (11.5, -13.5)])
sketch16.addConstraint([
    Sketcher.Constraint("Vertical", 0),
    Sketcher.Constraint("Horizontal", 1),
    Sketcher.Constraint("Vertical", 2),
    Sketcher.Constraint("Horizontal", 3),
    Sketcher.Constraint("Vertical", 4),
    Sketcher.Constraint("Horizontal", 5),
    Sketcher.Constraint("Vertical", 6),
    Sketcher.Constraint("Horizontal", 7),
    Sketcher.Constraint("Symmetric", 1, 2, 4, 2, -2),
    Sketcher.Constraint("Symmetric", 3, 2, 6, 2, -2),
    Sketcher.Constraint("DistanceX", 1, 1, 1, 2, Q("3 mm")),
    Sketcher.Constraint("DistanceY", 0, 1, 0, 2, Q("28.5 mm")),
    Sketcher.Constraint("DistanceY", -1, 1, 0, 2, Q("15 mm")),
    Sketcher.Constraint("DistanceX", 1, 2, 4, 2, Q("17 mm")),
])
pocket7 = doc.addObject("PartDesign::Pocket", "Pocket006")
body.addObject(pocket7)
pocket7.Profile = sketch16
pocket7.Length = 3
pocket7.Reversed = True

sketch17 = doc.addObject("Sketcher::SketchObject", "Sketch016")
body.addObject(sketch17)
sketch17.AttachmentSupport = (doc.XY_Plane, [""])
sketch17.MapMode = "FlatFace"
sketch17.AttachmentOffset = App.Placement(App.Vector(0, 0, 16.5), App.Rotation())
add_polygon(sketch17, [(-44.5, -11), (-44.5, -14), (-34.5, -14), (-34.5, -11)])
add_polygon(sketch17, [(34.5, -11), (34.5, -14), (44.5, -14), (44.5, -11)])
sketch17.addConstraint([
    Sketcher.Constraint("Vertical", 0),
    Sketcher.Constraint("Horizontal", 1),
    Sketcher.Constraint("Vertical", 2),
    Sketcher.Constraint("Horizontal", 3),
    Sketcher.Constraint("Vertical", 4),
    Sketcher.Constraint("Horizontal", 5),
    Sketcher.Constraint("Vertical", 6),
    Sketcher.Constraint("Horizontal", 7),
    Sketcher.Constraint("Symmetric", 1, 2, 4, 2, -2),
    Sketcher.Constraint("Symmetric", 3, 2, 6, 2, -2),
    Sketcher.Constraint("DistanceX", 1, 1, 1, 2, Q("10 mm")),
    Sketcher.Constraint("DistanceY", 0, 2, 0, 1, Q("3 mm")),
    Sketcher.Constraint("DistanceY", 0, 2, -1, 1, Q("14 mm")),
    Sketcher.Constraint("DistanceX", 1, 2, 4, 2, Q("69 mm")),
])
pad8 = doc.addObject("PartDesign::Pad", "Pad007")
body.addObject(pad8)
pad8.Profile = sketch17
pad8.Length = 3
pad8.Reversed = True

sketch18 = doc.addObject("Sketcher::SketchObject", "Sketch017")
body.addObject(sketch18)
sketch18.AttachmentSupport = (doc.XZ_Plane, [""])
sketch18.MapMode = "FlatFace"
sketch18.AttachmentOffset = App.Placement(App.Vector(0, 0, 11), App.Rotation())
add_polygon(sketch18, [(-5, -8), (-5, 8), (5, 8), (5, -8)])
sketch18.addConstraint([
    Sketcher.Constraint("Vertical", 0),
    Sketcher.Constraint("Horizontal", 1),
    Sketcher.Constraint("Vertical", 2),
    Sketcher.Constraint("Horizontal", 3),
    Sketcher.Constraint("Symmetric", 0, 2, 2, 2, -1, 1),
    Sketcher.Constraint("DistanceX", 1, 1, 1, 2, Q("10 mm")),
    Sketcher.Constraint("DistanceY", 0, 1, 0, 2, Q("15 mm")),
])
pocket8 = doc.addObject("PartDesign::Pocket", "Pocket007")
body.addObject(pocket8)
pocket8.Profile = sketch18
pocket8.Length = 3
pocket8.Reversed = True

sketch19 = doc.addObject("Sketcher::SketchObject", "Sketch018")
body.addObject(sketch19)
sketch19.AttachmentSupport = (doc.XY_Plane, [""])
sketch19.MapMode = "FlatFace"
sketch19.AttachmentOffset = App.Placement(App.Vector(0, 0, 16.5), App.Rotation())
add_polygon(sketch19, [(-2, 0), (-2, -11), (2, -11), (2, 0)])
sketch19.addConstraint([
    Sketcher.Constraint("Vertical", 0),
    Sketcher.Constraint("Horizontal", 1),
    Sketcher.Constraint("Vertical", 2),
    Sketcher.Constraint("Horizontal", 3),
    Sketcher.Constraint("Symmetric", 2, 2, 3, 2, -1, 1),
    Sketcher.Constraint("DistanceX", 1, 1, 1, 2, Q("4 mm")),
    Sketcher.Constraint("DistanceY", 0, 2, 0, 1, Q("11 mm")),
])
pad9 = doc.addObject("PartDesign::Pad", "Pad008")
body.addObject(pad9)
pad9.Profile = sketch19
pad9.Length = 3
pad9.Reversed = True

sketch20 = doc.addObject("Sketcher::SketchObject", "Sketch019")
body.addObject(sketch20)
sketch20.AttachmentSupport = (doc.XZ_Plane, [""])
sketch20.MapMode = "FlatFace"
sketch20.AttachmentOffset = App.Placement(App.Vector(0, 0, 11), App.Rotation())
add_polygon(sketch20, [(17, 0), (17, 11), (24, 11), (24, 0)])
sketch20.addConstraint([
    Sketcher.Constraint("Vertical", 0),
    Sketcher.Constraint("Horizontal", 1),
    Sketcher.Constraint("Vertical", 2),
    Sketcher.Constraint("Horizontal", 3),
    Sketcher.Constraint("PointOnObject", 2, 2, -1),
    Sketcher.Constraint("DistanceX", 1, 1, 1, 2, Q("7 mm")),
    Sketcher.Constraint("DistanceY", 0, 1, 0, 2, Q("11 mm")),
    Sketcher.Constraint("DistanceX", -1, 1, 0, 2, Q("17 mm")),
])
pocket9 = doc.addObject("PartDesign::Pocket", "Pocket008")
body.addObject(pocket9)
pocket9.Profile = sketch20
pocket9.Type = "UpToFirst"
pocket9.Reversed = True

sketch21 = doc.addObject("Sketcher::SketchObject", "Sketch020")
body.addObject(sketch21)
sketch21.AttachmentSupport = (doc.XZ_Plane, [""])
sketch21.MapMode = "FlatFace"
sketch21.AttachmentOffset = App.Placement(App.Vector(0, 0, 11), App.Rotation())
add_polygon(sketch21, [(17, -11), (17, 0), (24, 0), (24, -11)])
sketch21.addConstraint([
    Sketcher.Constraint("Vertical", 0),
    Sketcher.Constraint("Horizontal", 1),
    Sketcher.Constraint("Vertical", 2),
    Sketcher.Constraint("Horizontal", 3),
    Sketcher.Constraint("PointOnObject", 0, 2, -1),
    Sketcher.Constraint("DistanceX", 1, 1, 1, 2, Q("7 mm")),
    Sketcher.Constraint("DistanceY", 0, 1, 0, 2, Q("11 mm")),
    Sketcher.Constraint("DistanceX", -1, 1, 0, 2, Q("17 mm")),
])
pocket10 = doc.addObject("PartDesign::Pocket", "Pocket009")
body.addObject(pocket10)
pocket10.Profile = sketch21
pocket10.Type = "UpToFirst"
pocket10.Reversed = True

sketch22 = doc.addObject("Sketcher::SketchObject", "Sketch021")
body.addObject(sketch22)
sketch22.AttachmentSupport = (doc.XY_Plane, [""])
sketch22.MapMode = "FlatFace"
sketch22.AttachmentOffset = App.Placement(App.Vector(0, 0, 16.5), App.Rotation())
add_polygon(sketch22, [(-34, 0), (-34, -11), (-30, -11), (-30, 0)])
sketch22.addConstraint([
    Sketcher.Constraint("Vertical", 0),
    Sketcher.Constraint("Horizontal", 1),
    Sketcher.Constraint("Vertical", 2),
    Sketcher.Constraint("Horizontal", 3),
    Sketcher.Constraint("PointOnObject", 2, 2, -1),
    Sketcher.Constraint("DistanceX", 1, 1, 1, 2, Q("5 mm")),
    Sketcher.Constraint("DistanceY", 0, 2, 0, 1, Q("11 mm")),
    Sketcher.Constraint("DistanceX", 0, 2, -1, 1, Q("34.5 mm")),
])
pocket11 = doc.addObject("PartDesign::Pocket", "Pocket010")
body.addObject(pocket11)
pocket11.Profile = sketch22
pocket11.Length = 13.5

sketch23 = doc.addObject("Sketcher::SketchObject", "Sketch022")
body.addObject(sketch23)
sketch23.AttachmentSupport = (doc.XZ_Plane, [""])
sketch23.MapMode = "FlatFace"
sketch23.AttachmentOffset = App.Placement(App.Vector(0, 0, -3), App.Rotation())
sketch23.addGeometry([
    Part.Circle(App.Vector(57, 12.2, 0), App.Vector(0, 0, 1), 1.6),
    Part.Circle(App.Vector(-31, 12.2, 0), App.Vector(0, 0, 1), 1.6),
], False)
sketch23.addConstraint([
    Sketcher.Constraint("Equal", 0, 1),
    Sketcher.Constraint("Horizontal", 0, 3, 1, 3),
    Sketcher.Constraint("Diameter", 0, Q("3.3 mm")),
    Sketcher.Constraint("DistanceX", -1, 1, 0, 3, Q("57 mm")),
    Sketcher.Constraint("DistanceX", 1, 3, -1, 1, Q("31 mm")),
    Sketcher.Constraint("DistanceY", -1, 1, 0, 3, Q("12.25 mm")),
])
doc.recompute()
hole3 = doc.addObject("PartDesign::Hole", "Hole002")
body.addObject(hole3)
hole3.Profile = sketch23
hole3.ThreadType = "None"
hole3.Diameter = 3.3
hole3.DepthType = "Dimension"
hole3.Depth = 3
hole3.DrillPoint = "Flat"
hole3.Reversed = True

doc.recompute()
